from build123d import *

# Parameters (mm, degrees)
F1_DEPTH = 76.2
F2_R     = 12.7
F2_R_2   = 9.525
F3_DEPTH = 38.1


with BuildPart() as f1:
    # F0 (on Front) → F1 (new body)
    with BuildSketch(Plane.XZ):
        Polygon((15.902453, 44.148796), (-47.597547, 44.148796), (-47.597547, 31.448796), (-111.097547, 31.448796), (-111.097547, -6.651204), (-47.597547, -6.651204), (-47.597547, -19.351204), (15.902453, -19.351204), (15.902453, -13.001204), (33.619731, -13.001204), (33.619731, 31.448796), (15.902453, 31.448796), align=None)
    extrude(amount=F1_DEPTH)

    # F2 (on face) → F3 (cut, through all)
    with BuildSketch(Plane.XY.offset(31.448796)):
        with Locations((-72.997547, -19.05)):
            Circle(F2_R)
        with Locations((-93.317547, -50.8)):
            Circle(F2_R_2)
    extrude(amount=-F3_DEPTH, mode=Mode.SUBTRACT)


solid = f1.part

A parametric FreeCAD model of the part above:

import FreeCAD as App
import Part
import Sketcher
from FreeCAD import Vector
Q = App.Units.Quantity


def add_polygon(sketch, points):
    """Adds a closed chain of lines whose ends are joined by coincident constraints."""
    first, n = sketch.GeometryCount, len(points)
    for a, b in zip(points, points[1:] + points[:1]):
        sketch.addGeometry(Part.LineSegment(App.Vector(*a, 0), App.Vector(*b, 0)), False)
    for i in range(n):
        sketch.addConstraint(Sketcher.Constraint("Coincident", first + i, 2, first + (i + 1) % n, 1))

doc = App.newDocument("Part")
body = doc.addObject("PartDesign::Body", "Body")

# Sketch on XZ plane
sketch1 = body.newObject("Sketcher::SketchObject", "Sketch")
sketch1.AttachmentSupport = (doc.getObject("XZ_Plane"), [""])
sketch1.MapMode = "FlatFace"
add_polygon(sketch1, [(16, 44), (-48, 44), (-48, 31), (-111, 31), (-111, -7), (-48, -7), (-48, -19), (16, -19), (16, -13), (34, -13), (34, 31), (16, 31)])  # lines 0-11
sketch1.addConstraint([
    Sketcher.Constraint("Horizontal", 0),
    Sketcher.Constraint("Vertical", 1),
    Sketcher.Constraint("Horizontal", 2),
    Sketcher.Constraint("Vertical", 3),
    Sketcher.Constraint("Horizontal", 4),
    Sketcher.Constraint("Vertical", 5),
    Sketcher.Constraint("Horizontal", 6),
    Sketcher.Constraint("Vertical", 7),
    Sketcher.Constraint("Horizontal", 8),
    Sketcher.Constraint("Vertical", 9),
    Sketcher.Constraint("Horizontal", 10),
    Sketcher.Constraint("Vertical", 11),
    Sketcher.Constraint("Horizontal", 2, 2, 9, 2),
    Sketcher.Constraint("Vertical", 1, 2, 4, 2),
    Sketcher.Constraint("Vertical", 7, 2, 10, 2),
    Sketcher.Constraint("Equal", 0, 2),
    Sketcher.Constraint("Equal", 1, 5),
    Sketcher.Constraint("DistanceX", 0, 2, 0, 1, Q("2.5 in")),
    Sketcher.Constraint("DistanceY", 1, 2, 1, 1, Q("0.5 in")),
    Sketcher.Constraint("DistanceY", 3, 2, 3, 1, Q("1.5 in")),
    Sketcher.Constraint("DistanceY", 7, 1, 7, 2, Q("0.25 in")),
    Sketcher.Constraint("DistanceX", 8, 1, 8, 2, 17.717278),
    Sketcher.Constraint("DistanceX", -1, 1, 8, 2, 33.619731),
    Sketcher.Constraint("DistanceY", -1, 1, 0, 2, 44.148796),
])
pad1 = body.newObject("PartDesign::Pad", "Pad")
pad1.Profile = sketch1
pad1.Length = Q("3 in")

# Sketch on XY plane
sketch2 = body.newObject("Sketcher::SketchObject", "Sketch001")
sketch2.AttachmentSupport = (doc.getObject("XY_Plane"), [""])
sketch2.MapMode = "FlatFace"
sketch2.AttachmentOffset = App.Placement(Vector(0, 0, 31.448796), App.Rotation())
sketch2.addGeometry([
    Part.Circle(Vector(-73, -19, 0), Vector(0, 0, 1), 13),
    Part.Circle(Vector(-93, -51, 0), Vector(0, 0, 1), 10),
], False)
sketch2.addConstraint([
    Sketcher.Constraint("Diameter", 0, Q("1 in")),
    Sketcher.Constraint("Diameter", 1, Q("0.75 in")),
    Sketcher.Constraint("DistanceY", 1, 3, -1, 1, Q("2 in")),
    Sketcher.Constraint("DistanceX", 1, 3, 0, 3, Q("0.8 in")),
    Sketcher.Constraint("DistanceY", 0, 3, -1, 1, Q("0.75 in")),
    Sketcher.Constraint("DistanceX", 0, 3, -1, 1, 72.997547),
])
pocket1 = body.newObject("PartDesign::Pocket", "Pocket")
pocket1.Profile = sketch2
pocket1.Type = "ThroughAll"

doc.recompute()
